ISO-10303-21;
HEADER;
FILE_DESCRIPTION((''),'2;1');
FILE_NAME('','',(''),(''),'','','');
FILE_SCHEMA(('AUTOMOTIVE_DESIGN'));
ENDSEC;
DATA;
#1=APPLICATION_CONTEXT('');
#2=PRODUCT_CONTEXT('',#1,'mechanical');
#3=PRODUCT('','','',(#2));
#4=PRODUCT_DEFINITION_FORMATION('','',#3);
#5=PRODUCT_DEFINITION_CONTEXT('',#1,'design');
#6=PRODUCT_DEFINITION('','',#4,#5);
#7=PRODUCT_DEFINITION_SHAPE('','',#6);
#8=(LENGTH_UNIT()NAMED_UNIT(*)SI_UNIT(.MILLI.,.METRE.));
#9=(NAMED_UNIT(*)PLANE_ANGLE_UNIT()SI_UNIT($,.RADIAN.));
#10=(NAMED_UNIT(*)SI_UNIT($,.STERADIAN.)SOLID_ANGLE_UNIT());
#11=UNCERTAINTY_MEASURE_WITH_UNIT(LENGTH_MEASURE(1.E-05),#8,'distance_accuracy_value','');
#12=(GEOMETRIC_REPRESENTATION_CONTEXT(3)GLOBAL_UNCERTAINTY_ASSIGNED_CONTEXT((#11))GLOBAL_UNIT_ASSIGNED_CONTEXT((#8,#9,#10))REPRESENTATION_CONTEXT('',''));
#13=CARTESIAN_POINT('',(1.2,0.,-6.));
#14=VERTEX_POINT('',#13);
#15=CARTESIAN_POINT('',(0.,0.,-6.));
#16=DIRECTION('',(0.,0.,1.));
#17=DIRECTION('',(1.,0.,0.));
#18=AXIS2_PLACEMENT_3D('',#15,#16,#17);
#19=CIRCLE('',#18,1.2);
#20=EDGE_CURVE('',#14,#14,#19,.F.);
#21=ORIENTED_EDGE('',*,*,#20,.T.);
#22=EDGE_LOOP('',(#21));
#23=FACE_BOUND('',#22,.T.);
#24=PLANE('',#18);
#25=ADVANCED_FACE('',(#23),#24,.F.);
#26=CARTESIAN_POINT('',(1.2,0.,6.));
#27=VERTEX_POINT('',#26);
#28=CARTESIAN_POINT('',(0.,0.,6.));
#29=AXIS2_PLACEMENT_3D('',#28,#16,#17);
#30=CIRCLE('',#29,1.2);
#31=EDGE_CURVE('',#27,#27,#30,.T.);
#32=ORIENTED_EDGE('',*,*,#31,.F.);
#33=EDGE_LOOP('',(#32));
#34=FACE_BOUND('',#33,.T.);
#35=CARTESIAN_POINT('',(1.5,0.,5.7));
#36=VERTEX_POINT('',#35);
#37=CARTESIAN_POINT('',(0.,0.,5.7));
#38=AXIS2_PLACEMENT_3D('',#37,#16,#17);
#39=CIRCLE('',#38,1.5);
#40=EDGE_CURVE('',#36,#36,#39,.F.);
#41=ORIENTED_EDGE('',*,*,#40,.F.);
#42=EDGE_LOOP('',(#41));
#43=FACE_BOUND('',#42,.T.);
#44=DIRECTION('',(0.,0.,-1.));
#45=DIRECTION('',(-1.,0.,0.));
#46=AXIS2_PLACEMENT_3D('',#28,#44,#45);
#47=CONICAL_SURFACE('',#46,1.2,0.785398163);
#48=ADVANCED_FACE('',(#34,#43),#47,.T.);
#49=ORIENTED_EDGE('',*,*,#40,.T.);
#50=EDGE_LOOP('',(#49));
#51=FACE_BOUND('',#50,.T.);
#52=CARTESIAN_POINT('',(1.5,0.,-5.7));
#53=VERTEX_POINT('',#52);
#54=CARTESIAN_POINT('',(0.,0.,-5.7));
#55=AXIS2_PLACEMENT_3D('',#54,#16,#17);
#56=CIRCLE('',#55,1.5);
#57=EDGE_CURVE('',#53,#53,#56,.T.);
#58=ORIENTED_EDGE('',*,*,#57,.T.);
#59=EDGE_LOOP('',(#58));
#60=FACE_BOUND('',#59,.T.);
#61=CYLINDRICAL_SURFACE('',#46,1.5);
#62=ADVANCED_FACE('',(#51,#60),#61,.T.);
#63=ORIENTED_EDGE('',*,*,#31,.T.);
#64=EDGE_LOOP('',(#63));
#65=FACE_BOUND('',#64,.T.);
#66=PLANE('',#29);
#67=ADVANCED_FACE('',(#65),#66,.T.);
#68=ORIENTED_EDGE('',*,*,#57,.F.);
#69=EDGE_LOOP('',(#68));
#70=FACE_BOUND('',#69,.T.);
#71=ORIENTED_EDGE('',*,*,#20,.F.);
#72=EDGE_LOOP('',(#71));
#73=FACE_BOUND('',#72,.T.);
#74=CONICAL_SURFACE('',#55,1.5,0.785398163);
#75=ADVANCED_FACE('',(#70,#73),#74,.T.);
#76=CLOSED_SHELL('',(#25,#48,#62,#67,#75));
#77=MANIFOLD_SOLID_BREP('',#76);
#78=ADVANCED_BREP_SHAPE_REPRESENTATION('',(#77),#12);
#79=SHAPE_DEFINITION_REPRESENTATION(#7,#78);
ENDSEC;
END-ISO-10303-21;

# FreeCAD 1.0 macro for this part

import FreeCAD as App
import Part
import Sketcher

V = App.Vector
Q = App.Units.Quantity


def edges_at(feature, points):
    """Names of the edges that pass closest to the given points."""
    edges = feature.Shape.Edges
    near = lambda p: min(range(len(edges)), key=lambda i: edges[i].distToShape(Part.Vertex(*p))[0])
    return sorted({f"Edge{near(p) + 1}" for p in points})

doc = App.newDocument("Part")
params = doc.addObject("Spreadsheet::Sheet", "Params")
for row, (alias, value) in enumerate([
    ("sketch1_diameter", "3 mm"),
    ("pad1_length", "12 mm"),
    ("chamfer_size", "0.3 mm"),
], start=1):
    params.set(f"A{row}", alias)
    params.set(f"B{row}", "=" + value)
    params.setAlias(f"B{row}", alias)

body = doc.addObject("PartDesign::Body", "Body")

# Sketch on XY plane
sketch1 = doc.addObject("Sketcher::SketchObject", "Sketch")
body.addObject(sketch1)
sketch1.AttachmentSupport = (doc.XY_Plane, [""])
sketch1.MapMode = "FlatFace"
sketch1.addGeometry(Part.Circle(V(0, 0, 0), V(0, 0, 1), 1.5), False)
sketch1.addConstraint([
    Sketcher.Constraint("Coincident", 0, 3, -1, 1),
    Sketcher.Constraint("Diameter", 0, Q("3 mm")),
])
sketch1.setExpression("Constraints[1]", "Params.sketch1_diameter")
pad1 = doc.addObject("PartDesign::Pad", "Pad")
body.addObject(pad1)
pad1.Profile = sketch1
pad1.setExpression("Length", "Params.pad1_length")
pad1.Midplane = True
doc.recompute()

chamfer = doc.addObject("PartDesign::Chamfer", "Chamfer")
body.addObject(chamfer)
chamfer.Base = (pad1, edges_at(pad1, [(-1.5, 0, -6), (-1.5, 0, 6)]))
chamfer.setExpression("Size", "Params.chamfer_size")

doc.recompute()
